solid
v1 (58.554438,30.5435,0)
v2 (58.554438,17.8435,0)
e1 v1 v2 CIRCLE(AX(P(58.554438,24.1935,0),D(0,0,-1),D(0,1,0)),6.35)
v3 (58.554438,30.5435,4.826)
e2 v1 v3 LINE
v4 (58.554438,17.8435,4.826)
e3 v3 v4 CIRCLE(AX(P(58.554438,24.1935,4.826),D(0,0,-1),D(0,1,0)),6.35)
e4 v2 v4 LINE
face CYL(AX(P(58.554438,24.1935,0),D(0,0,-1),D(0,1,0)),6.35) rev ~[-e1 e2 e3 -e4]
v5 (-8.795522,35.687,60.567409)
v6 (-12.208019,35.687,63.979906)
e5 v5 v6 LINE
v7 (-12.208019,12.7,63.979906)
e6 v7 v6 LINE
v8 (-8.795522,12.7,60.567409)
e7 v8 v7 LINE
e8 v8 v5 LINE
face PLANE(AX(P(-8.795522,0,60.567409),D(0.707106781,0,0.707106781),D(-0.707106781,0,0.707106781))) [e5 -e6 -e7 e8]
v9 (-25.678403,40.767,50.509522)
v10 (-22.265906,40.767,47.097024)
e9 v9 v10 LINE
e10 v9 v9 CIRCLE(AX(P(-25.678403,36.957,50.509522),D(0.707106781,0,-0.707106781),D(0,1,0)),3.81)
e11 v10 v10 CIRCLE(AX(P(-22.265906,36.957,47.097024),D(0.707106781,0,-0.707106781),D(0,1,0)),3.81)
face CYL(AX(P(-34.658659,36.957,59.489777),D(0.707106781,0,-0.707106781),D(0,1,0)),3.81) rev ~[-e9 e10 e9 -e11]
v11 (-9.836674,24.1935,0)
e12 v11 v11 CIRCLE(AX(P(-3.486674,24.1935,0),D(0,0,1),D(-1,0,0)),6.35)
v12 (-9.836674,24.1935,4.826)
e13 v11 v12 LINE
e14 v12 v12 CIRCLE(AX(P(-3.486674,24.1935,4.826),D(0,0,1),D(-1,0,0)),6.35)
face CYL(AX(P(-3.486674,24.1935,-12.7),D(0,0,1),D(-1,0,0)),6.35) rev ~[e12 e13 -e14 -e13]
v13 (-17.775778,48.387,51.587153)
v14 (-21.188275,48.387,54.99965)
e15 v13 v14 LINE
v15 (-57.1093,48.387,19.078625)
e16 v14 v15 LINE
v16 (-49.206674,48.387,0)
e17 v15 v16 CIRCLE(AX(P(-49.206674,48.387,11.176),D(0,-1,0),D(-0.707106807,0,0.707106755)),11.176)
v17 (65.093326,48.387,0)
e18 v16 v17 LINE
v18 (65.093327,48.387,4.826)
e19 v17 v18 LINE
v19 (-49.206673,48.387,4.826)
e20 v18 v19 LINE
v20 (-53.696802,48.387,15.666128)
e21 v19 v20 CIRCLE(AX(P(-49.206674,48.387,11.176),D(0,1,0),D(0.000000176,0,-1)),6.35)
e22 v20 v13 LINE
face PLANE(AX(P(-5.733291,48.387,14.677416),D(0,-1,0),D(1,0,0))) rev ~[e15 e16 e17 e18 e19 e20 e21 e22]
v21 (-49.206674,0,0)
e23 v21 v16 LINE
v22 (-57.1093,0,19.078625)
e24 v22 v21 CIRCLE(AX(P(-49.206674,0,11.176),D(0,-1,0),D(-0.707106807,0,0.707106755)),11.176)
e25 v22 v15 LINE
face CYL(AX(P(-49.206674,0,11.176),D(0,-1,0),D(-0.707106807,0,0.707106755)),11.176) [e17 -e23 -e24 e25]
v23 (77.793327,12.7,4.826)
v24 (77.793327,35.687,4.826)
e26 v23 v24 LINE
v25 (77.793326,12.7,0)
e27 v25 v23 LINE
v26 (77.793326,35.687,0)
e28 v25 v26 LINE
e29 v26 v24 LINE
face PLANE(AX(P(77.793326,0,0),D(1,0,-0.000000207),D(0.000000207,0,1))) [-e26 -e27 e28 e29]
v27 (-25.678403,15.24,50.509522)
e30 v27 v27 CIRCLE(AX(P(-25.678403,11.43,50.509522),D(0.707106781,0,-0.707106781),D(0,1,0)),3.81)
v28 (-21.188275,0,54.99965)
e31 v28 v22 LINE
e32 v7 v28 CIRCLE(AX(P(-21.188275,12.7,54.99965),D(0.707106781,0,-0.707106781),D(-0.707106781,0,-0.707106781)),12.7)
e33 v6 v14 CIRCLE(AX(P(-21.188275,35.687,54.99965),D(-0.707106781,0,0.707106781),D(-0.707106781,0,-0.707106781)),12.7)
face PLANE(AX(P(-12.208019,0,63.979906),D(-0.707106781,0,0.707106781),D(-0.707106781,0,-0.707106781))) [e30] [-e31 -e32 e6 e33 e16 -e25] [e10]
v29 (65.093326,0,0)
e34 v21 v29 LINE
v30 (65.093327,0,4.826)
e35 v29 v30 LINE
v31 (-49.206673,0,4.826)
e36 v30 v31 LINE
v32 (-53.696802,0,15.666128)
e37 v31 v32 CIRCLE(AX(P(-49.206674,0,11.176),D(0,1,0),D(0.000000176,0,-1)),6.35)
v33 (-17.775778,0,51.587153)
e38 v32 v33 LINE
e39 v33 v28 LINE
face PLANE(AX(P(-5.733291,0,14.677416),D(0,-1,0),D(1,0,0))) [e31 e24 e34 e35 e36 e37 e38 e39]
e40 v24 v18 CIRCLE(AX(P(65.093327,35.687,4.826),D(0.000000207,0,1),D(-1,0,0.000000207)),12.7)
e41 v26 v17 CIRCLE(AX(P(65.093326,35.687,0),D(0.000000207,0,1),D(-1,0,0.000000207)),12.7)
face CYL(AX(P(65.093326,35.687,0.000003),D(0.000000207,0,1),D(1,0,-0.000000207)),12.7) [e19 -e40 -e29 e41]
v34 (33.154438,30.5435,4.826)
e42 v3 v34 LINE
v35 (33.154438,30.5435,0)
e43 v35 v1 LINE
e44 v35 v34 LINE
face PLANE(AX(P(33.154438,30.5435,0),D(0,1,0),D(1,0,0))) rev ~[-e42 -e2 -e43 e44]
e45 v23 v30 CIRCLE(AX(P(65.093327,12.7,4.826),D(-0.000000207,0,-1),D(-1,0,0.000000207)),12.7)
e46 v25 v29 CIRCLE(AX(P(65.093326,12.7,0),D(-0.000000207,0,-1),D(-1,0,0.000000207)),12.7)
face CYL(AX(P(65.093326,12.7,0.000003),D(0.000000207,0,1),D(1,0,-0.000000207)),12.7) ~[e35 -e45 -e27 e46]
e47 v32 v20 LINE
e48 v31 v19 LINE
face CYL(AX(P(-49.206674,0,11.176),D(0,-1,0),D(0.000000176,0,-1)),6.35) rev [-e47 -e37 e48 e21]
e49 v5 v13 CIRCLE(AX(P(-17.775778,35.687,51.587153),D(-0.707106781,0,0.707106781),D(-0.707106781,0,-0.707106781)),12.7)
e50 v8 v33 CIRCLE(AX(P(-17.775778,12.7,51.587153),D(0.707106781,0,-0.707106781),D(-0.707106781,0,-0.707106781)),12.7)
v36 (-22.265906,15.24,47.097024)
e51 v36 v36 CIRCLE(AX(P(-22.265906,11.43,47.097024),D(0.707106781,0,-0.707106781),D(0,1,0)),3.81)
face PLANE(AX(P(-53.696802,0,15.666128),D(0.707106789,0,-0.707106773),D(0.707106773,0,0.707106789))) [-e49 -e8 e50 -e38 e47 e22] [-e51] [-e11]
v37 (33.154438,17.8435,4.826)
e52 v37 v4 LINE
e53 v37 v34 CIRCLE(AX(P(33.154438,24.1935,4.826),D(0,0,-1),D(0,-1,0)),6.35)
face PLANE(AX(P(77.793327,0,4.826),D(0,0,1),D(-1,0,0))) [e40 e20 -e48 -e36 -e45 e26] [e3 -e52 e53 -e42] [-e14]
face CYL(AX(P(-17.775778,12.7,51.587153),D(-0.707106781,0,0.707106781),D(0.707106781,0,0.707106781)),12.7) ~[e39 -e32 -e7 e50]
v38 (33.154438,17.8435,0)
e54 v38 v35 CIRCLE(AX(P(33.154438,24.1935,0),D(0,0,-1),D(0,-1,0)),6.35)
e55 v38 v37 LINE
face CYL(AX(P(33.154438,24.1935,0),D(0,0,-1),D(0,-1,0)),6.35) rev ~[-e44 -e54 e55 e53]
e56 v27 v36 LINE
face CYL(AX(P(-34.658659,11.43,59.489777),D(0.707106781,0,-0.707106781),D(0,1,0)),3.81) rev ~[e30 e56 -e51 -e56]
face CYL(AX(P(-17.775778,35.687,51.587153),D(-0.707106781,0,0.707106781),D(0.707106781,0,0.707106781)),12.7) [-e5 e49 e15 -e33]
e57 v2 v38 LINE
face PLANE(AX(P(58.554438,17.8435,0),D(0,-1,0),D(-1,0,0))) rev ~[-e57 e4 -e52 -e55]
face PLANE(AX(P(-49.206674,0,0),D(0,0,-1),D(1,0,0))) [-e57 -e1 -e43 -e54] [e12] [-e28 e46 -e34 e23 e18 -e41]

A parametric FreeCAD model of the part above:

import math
import FreeCAD as App
import Part
import Sketcher
Q = App.Units.Quantity


def edges_at(feature, points):
    """Names of the edges that pass closest to the given points."""
    edges = feature.Shape.Edges
    near = lambda p: min(range(len(edges)), key=lambda i: edges[i].distToShape(Part.Vertex(*p))[0])
    return sorted({f"Edge{near(p) + 1}" for p in points})

doc = App.newDocument("Part")
body = doc.addObject("PartDesign::Body", "Body")

# Sketch on XZ plane
sketch1 = doc.addObject("Sketcher::SketchObject", "Sketch")
body.addObject(sketch1)
sketch1.AttachmentSupport = (doc.XZ_Plane, [""])
sketch1.MapMode = "FlatFace"
sketch1.addGeometry([
    Part.LineSegment(App.Vector(-49.2, 0, 0), App.Vector(77.8, 0, 0)),  # 0
    Part.LineSegment(App.Vector(77.8, 0, 0), App.Vector(77.8, 4.8, 0)),  # 1
    Part.LineSegment(App.Vector(77.8, 4.8, 0), App.Vector(-49.2, 4.8, 0)),  # 2
    Part.ArcOfCircle(Part.Circle(App.Vector(-49.2, 11.2, 0), App.Vector(0, 0, 1), 6.3), math.radians(135), math.radians(270)),  # 3
    Part.LineSegment(App.Vector(-53.7, 15.7, 0), App.Vector(-8.8, 60.6, 0)),  # 4
    Part.LineSegment(App.Vector(-8.8, 60.6, 0), App.Vector(-12.2, 64, 0)),  # 5
    Part.LineSegment(App.Vector(-12.2, 64, 0), App.Vector(-57.1, 19.1, 0)),  # 6
    Part.ArcOfCircle(Part.Circle(App.Vector(-49.2, 11.2, 0), App.Vector(0, 0, 1), 11.2), math.radians(135), math.radians(270)),  # 7
], False)
sketch1.addConstraint([
    Sketcher.Constraint("Coincident", 0, 2, 1, 1),
    Sketcher.Constraint("Coincident", 1, 2, 2, 1),
    Sketcher.Constraint("Tangent", 2, 2, 3, 2),
    Sketcher.Constraint("Tangent", 3, 1, 4, 1),
    Sketcher.Constraint("Coincident", 4, 2, 5, 1),
    Sketcher.Constraint("Coincident", 5, 2, 6, 1),
    Sketcher.Constraint("Tangent", 6, 2, 7, 1),
    Sketcher.Constraint("Tangent", 7, 2, 0, 1),
    Sketcher.Constraint("Horizontal", 0),
    Sketcher.Constraint("Vertical", 1),
    Sketcher.Constraint("Horizontal", 2),
    Sketcher.Constraint("Coincident", 7, 3, 3, 3),
    Sketcher.Constraint("PointOnObject", 0, 2, -1),
    Sketcher.Constraint("Perpendicular", 4, 5),
    Sketcher.Constraint("Perpendicular", 5, 6),
    Sketcher.Constraint("DistanceX", 0, 1, 0, 2, Q("5 in")),
    Sketcher.Constraint("Radius", 3, Q("0.25 in")),
    Sketcher.Constraint("Radius", 7, Q("0.44 in")),
    Sketcher.Constraint("Angle", 4, Q("45.000001 deg")),
    Sketcher.Constraint("Distance", 4, Q("2.5 in")),
    Sketcher.Constraint("DistanceX", 3, 1, -1, 1, Q("53.696802 mm")),
])
pad1 = doc.addObject("PartDesign::Pad", "Pad")
body.addObject(pad1)
pad1.Profile = sketch1
pad1.Length = Q("1.905 in")
pad1.Reversed = True
doc.recompute()

fillet = doc.addObject("PartDesign::Fillet", "Fillet")
body.addObject(fillet)
fillet.Base = (pad1, edges_at(pad1, [
    (-10.502, 48.387, 62.274),
    (-10.502, 0, 62.274),
    (77.793, 0, 2.413),
    (77.793, 48.387, 2.413),
]))
fillet.Radius = Q("0.5 in")

# Sketch on an angled plane
sketch2 = doc.addObject("Sketcher::SketchObject", "Sketch001")
body.addObject(sketch2)
sketch2.Placement = App.Placement(App.Vector(-38.093962, 0, 38.093962), App.Rotation(App.Vector(0, -1, 0), App.Vector(0.707106781, 0, 0.707106781), App.Vector(-0.707106781, 0, 0.707106781), "ZXY"))
sketch2.addGeometry([
    Part.Circle(App.Vector(-37, 17.6, 0), App.Vector(0, 0, 1), 3.8),
    Part.Circle(App.Vector(-11.4, 17.6, 0), App.Vector(0, 0, 1), 3.8),
], False)
sketch2.addConstraint([
    Sketcher.Constraint("Equal", 0, 1),
    Sketcher.Constraint("Horizontal", 0, 3, 1, 3),
    Sketcher.Constraint("Diameter", 0, Q("0.3 in")),
    Sketcher.Constraint("DistanceX", 1, 3, -1, 1, Q("0.45 in")),
    Sketcher.Constraint("DistanceX", 0, 3, -1, 1, Q("1.455 in")),
    Sketcher.Constraint("DistanceY", -1, 1, 0, 3, Q("17.558252 mm")),
])
doc.recompute()
hole = doc.addObject("PartDesign::Hole", "Hole")
body.addObject(hole)
hole.Profile = sketch2
hole.ThreadType = "None"
hole.Diameter = Q("0.3 in")
hole.DepthType = "Dimension"
hole.Depth = Q("0.5 in")
hole.DrillPoint = "Flat"

# Sketch on XY plane
sketch3 = doc.addObject("Sketcher::SketchObject", "Sketch002")
body.addObject(sketch3)
sketch3.AttachmentSupport = (doc.XY_Plane, [""])
sketch3.MapMode = "FlatFace"
sketch3.addGeometry(Part.Circle(App.Vector(-3, 24, 0), App.Vector(0, 0, 1), 6), False)
sketch3.addConstraint([
    Sketcher.Constraint("Diameter", 0, Q("0.5 in")),
    Sketcher.Constraint("DistanceY", -1, 1, 0, 3, Q("0.9525 in")),
    Sketcher.Constraint("DistanceX", 0, 3, -1, 1, Q("3.486674 mm")),
])
doc.recompute()
hole2 = doc.addObject("PartDesign::Hole", "Hole001")
body.addObject(hole2)
hole2.Profile = sketch3
hole2.ThreadType = "None"
hole2.Diameter = Q("0.5 in")
hole2.DepthType = "Dimension"
hole2.Depth = Q("0.5 in")
hole2.DrillPoint = "Flat"
hole2.Reversed = True

# Sketch on XY plane
sketch4 = doc.addObject("Sketcher::SketchObject", "Sketch003")
body.addObject(sketch4)
sketch4.AttachmentSupport = (doc.XY_Plane, [""])
sketch4.MapMode = "FlatFace"
sketch4.addGeometry([
    Part.LineSegment(App.Vector(59, 18, 0), App.Vector(33, 18, 0)),
    Part.ArcOfCircle(Part.Circle(App.Vector(33, 24, 0), App.Vector(0, 0, 1), 6), math.radians(90), math.radians(270)),
    Part.LineSegment(App.Vector(33, 31, 0), App.Vector(59, 31, 0)),
    Part.ArcOfCircle(Part.Circle(App.Vector(59, 24, 0), App.Vector(0, 0, 1), 6), math.radians(-90), math.radians(90)),
], False)
sketch4.addConstraint([
    Sketcher.Constraint("Tangent", 0, 2, 1, 2),
    Sketcher.Constraint("Tangent", 1, 1, 2, 1),
    Sketcher.Constraint("Tangent", 2, 2, 3, 2),
    Sketcher.Constraint("Tangent", 3, 1, 0, 1),
    Sketcher.Constraint("Horizontal", 0),
    Sketcher.Constraint("Horizontal", 2),
    Sketcher.Constraint("DistanceX", 0, 2, 0, 1, Q("1 in")),
    Sketcher.Constraint("Radius", 1, Q("0.25 in")),
    Sketcher.Constraint("DistanceY", -1, 1, 1, 3, Q("0.9525 in")),
    Sketcher.Constraint("DistanceX", -1, 1, 1, 3, Q("33.154438 mm")),
])
pocket1 = doc.addObject("PartDesign::Pocket", "Pocket")
body.addObject(pocket1)
pocket1.Profile = sketch4
pocket1.Type = "ThroughAll"
pocket1.Reversed = True

doc.recompute()
